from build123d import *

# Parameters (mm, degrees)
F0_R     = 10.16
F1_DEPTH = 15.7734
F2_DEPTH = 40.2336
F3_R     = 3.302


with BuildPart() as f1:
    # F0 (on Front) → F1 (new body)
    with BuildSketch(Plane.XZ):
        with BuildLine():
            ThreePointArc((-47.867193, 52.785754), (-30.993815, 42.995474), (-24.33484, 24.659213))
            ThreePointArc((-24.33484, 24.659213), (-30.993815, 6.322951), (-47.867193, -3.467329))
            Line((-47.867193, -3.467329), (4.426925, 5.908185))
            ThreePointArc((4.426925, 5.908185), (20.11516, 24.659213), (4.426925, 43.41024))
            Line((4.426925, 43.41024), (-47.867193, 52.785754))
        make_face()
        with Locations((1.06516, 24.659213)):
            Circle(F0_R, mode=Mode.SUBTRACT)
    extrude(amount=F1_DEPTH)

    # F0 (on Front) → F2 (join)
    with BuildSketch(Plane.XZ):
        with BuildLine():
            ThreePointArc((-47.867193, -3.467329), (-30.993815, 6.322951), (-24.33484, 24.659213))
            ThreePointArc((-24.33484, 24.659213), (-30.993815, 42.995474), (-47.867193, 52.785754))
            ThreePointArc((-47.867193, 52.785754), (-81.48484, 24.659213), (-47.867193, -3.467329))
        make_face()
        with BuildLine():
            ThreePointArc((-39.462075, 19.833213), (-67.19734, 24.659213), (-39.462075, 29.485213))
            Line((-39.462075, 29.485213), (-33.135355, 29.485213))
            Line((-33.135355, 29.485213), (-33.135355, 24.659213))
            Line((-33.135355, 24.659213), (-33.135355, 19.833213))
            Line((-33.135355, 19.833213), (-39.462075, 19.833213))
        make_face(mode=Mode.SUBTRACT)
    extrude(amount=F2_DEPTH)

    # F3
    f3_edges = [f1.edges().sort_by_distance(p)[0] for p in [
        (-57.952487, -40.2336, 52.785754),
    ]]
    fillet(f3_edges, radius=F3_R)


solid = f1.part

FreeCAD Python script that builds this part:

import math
import FreeCAD as App
import Part
import Sketcher
from FreeCAD import Vector
Q = App.Units.Quantity


def edges_at(feature, points):
    """Names of the edges that pass closest to the given points."""
    edges = feature.Shape.Edges
    near = lambda p: min(range(len(edges)), key=lambda i: edges[i].distToShape(Part.Vertex(*p))[0])
    return sorted({f"Edge{near(p) + 1}" for p in points})

doc = App.newDocument("Part")
body = doc.addObject("PartDesign::Body", "Body")

# Sketch on XZ plane
sketch1 = doc.addObject("Sketcher::SketchObject", "Sketch")
body.addObject(sketch1)
sketch1.AttachmentSupport = (doc.XZ_Plane, [""])
sketch1.MapMode = "FlatFace"
sketch1.addGeometry([
    Part.ArcOfCircle(Part.Circle(Vector(-52.909839, 24.659213, 0), Vector(0, 0, 1), 28.574999), math.radians(0), math.radians(79.835753)),  # 0
    Part.ArcOfCircle(Part.Circle(Vector(-52.909839, 24.659212, 0), Vector(0, 0, 1), 28.574999), math.radians(-79.835753), math.radians(0.000002)),  # 1
    Part.LineSegment(Vector(-47.867193, -3.467329, 0), Vector(4.426925, 5.908185, 0)),  # 2
    Part.ArcOfCircle(Part.Circle(Vector(1.06516, 24.659212, 0), Vector(0, 0, 1), 19.05), math.radians(-79.835751), math.radians(79.835751)),  # 3
    Part.LineSegment(Vector(4.426925, 43.41024, 0), Vector(-47.867193, 52.785754, 0)),  # 4
    Part.Circle(Vector(1.06516, 24.659213, 0), Vector(0, 0, 1), 10.16),  # 5
], False)
sketch1.addConstraint([
    Sketcher.Constraint("Tangent", 0, 1, 1, 2),
    Sketcher.Constraint("Tangent", 1, 1, 2, 1),
    Sketcher.Constraint("Tangent", 2, 2, 3, 1),
    Sketcher.Constraint("Tangent", 3, 2, 4, 1),
    Sketcher.Constraint("Tangent", 4, 2, 0, 2),
    Sketcher.Constraint("Coincident", 5, 3, 3, 3),
    Sketcher.Constraint("Equal", 0, 1),
    Sketcher.Constraint("Horizontal", 1, 3, 3, 3),
    Sketcher.Constraint("Horizontal", 5, 3, 0, 1),
    Sketcher.Constraint("Diameter", 5, Q("0.8 in")),
    Sketcher.Constraint("Radius", 3, Q("0.75 in")),
    Sketcher.Constraint("Radius", 0, Q("1.125 in")),
    Sketcher.Constraint("DistanceX", 0, 1, 5, 3, Q("1 in")),
    Sketcher.Constraint("DistanceX", 0, 3, -1, 1, 52.909839),
    Sketcher.Constraint("DistanceY", -1, 1, 1, 3, 24.659212),
])
pad1 = doc.addObject("PartDesign::Pad", "Pad")
body.addObject(pad1)
pad1.Profile = sketch1
pad1.Length = Q("0.621 in")

# Sketch on XZ plane
sketch2 = doc.addObject("Sketcher::SketchObject", "Sketch001")
body.addObject(sketch2)
sketch2.AttachmentSupport = (doc.XZ_Plane, [""])
sketch2.MapMode = "FlatFace"
sketch2.addGeometry([
    Part.ArcOfCircle(Part.Circle(Vector(-52.909839, 24.659212, 0), Vector(0, 0, 1), 28.574999), math.radians(-79.835753), math.radians(0.000002)),  # 0
    Part.ArcOfCircle(Part.Circle(Vector(-52.909839, 24.659213, 0), Vector(0, 0, 1), 28.574999), math.radians(0), math.radians(79.835753)),  # 1
    Part.ArcOfCircle(Part.Circle(Vector(-52.90984, 24.659212, 0), Vector(0, 0, 1), 28.575), math.radians(79.835752), math.radians(280.164248)),  # 2
    Part.LineSegment(Vector(-33.135355, 19.833213, 0), Vector(-39.462075, 19.833213, 0)),  # 3
    Part.ArcOfCircle(Part.Circle(Vector(-52.90984, 24.659213, 0), Vector(0, 0, 1), 14.2875), math.radians(19.741542), math.radians(340.258458)),  # 4
    Part.LineSegment(Vector(-39.462075, 29.485213, 0), Vector(-33.135355, 29.485213, 0)),  # 5
    Part.LineSegment(Vector(-33.135355, 29.485213, 0), Vector(-33.135355, 19.833213, 0)),  # 6
], False)
sketch2.addConstraint([
    Sketcher.Constraint("Tangent", 0, 2, 1, 1),
    Sketcher.Constraint("Tangent", 1, 2, 2, 1),
    Sketcher.Constraint("Tangent", 2, 2, 0, 1),
    Sketcher.Constraint("Coincident", 3, 2, 4, 2),
    Sketcher.Constraint("Coincident", 4, 1, 5, 1),
    Sketcher.Constraint("Coincident", 5, 2, 6, 1),
    Sketcher.Constraint("Coincident", 6, 2, 3, 1),
    Sketcher.Constraint("Horizontal", 3),
    Sketcher.Constraint("Horizontal", 5),
    Sketcher.Constraint("Vertical", 6),
    Sketcher.Constraint("Coincident", 4, 3, 0, 3),
    Sketcher.Constraint("Horizontal", 4, 3, 0, 2),
    Sketcher.Constraint("Vertical", 1, 2, 2, 2),
    Sketcher.Constraint("Vertical", 3, 2, 4, 1),
    Sketcher.Constraint("Radius", 0, Q("1.125 in")),
    Sketcher.Constraint("Radius", 4, Q("0.5625 in")),
    Sketcher.Constraint("DistanceY", 6, 2, 6, 1, Q("0.38 in")),
    Sketcher.Constraint("DistanceX", 3, 2, 3, 1, 6.32672),
    Sketcher.Constraint("DistanceX", 0, 3, -1, 1, 52.909839),
    Sketcher.Constraint("DistanceY", -1, 1, 0, 3, 24.659212),
    Sketcher.Constraint("DistanceY", 2, 2, -1, 1, 3.467329),
])
pad2 = doc.addObject("PartDesign::Pad", "Pad001")
body.addObject(pad2)
pad2.Profile = sketch2
pad2.Length = Q("1.584 in")
doc.recompute()

fillet = doc.addObject("PartDesign::Fillet", "Fillet")
body.addObject(fillet)
fillet.Base = (pad2, edges_at(pad2, [(-81.485, -40.234, 24.659)]))
fillet.Radius = Q("0.13 in")

doc.recompute()
